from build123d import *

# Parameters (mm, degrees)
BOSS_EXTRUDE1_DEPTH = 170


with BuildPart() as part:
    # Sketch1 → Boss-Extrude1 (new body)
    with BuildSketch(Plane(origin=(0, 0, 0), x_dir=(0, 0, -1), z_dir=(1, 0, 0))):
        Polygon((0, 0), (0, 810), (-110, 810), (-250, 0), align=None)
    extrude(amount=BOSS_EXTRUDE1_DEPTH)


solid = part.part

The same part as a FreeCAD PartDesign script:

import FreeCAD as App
import Part
import Sketcher
from FreeCAD import Vector

doc = App.newDocument("Part")
body = doc.addObject("PartDesign::Body", "Body")

# Sketch on YZ plane
sketch1 = body.newObject("Sketcher::SketchObject", "Sketch")
sketch1.AttachmentSupport = (doc.getObject("YZ_Plane"), [""])
sketch1.MapMode = "FlatFace"
sketch1.addGeometry(Part.LineSegment(Vector(0, 0, 0), Vector(810, 0, 0)), False)
sketch1.addGeometry(Part.LineSegment(Vector(810, 0, 0), Vector(810, 110, 0)), False)
sketch1.addGeometry(Part.LineSegment(Vector(810, 110, 0), Vector(0, 250, 0)), False)
sketch1.addGeometry(Part.LineSegment(Vector(0, 250, 0), Vector(0, 0, 0)), False)
sketch1.addConstraint(Sketcher.Constraint("Coincident", 0, 2, 1, 1))
sketch1.addConstraint(Sketcher.Constraint("Coincident", 1, 2, 2, 1))
sketch1.addConstraint(Sketcher.Constraint("Coincident", 2, 2, 3, 1))
sketch1.addConstraint(Sketcher.Constraint("Coincident", 3, 2, 0, 1))
sketch1.addConstraint(Sketcher.Constraint("Horizontal", 0))
sketch1.addConstraint(Sketcher.Constraint("Vertical", 1))
sketch1.addConstraint(Sketcher.Constraint("Vertical", 3))
sketch1.addConstraint(Sketcher.Constraint("Coincident", 3, 2, -1, 1))
sketch1.addConstraint(Sketcher.Constraint("DistanceX", 0, 1, 0, 2, 810.0))
sketch1.addConstraint(Sketcher.Constraint("DistanceY", 1, 1, 1, 2, 110.0))
sketch1.addConstraint(Sketcher.Constraint("DistanceY", 3, 2, 3, 1, 250.0))
pad1 = body.newObject("PartDesign::Pad", "Pad")
pad1.Profile = sketch1
pad1.Length = 170

doc.recompute()
